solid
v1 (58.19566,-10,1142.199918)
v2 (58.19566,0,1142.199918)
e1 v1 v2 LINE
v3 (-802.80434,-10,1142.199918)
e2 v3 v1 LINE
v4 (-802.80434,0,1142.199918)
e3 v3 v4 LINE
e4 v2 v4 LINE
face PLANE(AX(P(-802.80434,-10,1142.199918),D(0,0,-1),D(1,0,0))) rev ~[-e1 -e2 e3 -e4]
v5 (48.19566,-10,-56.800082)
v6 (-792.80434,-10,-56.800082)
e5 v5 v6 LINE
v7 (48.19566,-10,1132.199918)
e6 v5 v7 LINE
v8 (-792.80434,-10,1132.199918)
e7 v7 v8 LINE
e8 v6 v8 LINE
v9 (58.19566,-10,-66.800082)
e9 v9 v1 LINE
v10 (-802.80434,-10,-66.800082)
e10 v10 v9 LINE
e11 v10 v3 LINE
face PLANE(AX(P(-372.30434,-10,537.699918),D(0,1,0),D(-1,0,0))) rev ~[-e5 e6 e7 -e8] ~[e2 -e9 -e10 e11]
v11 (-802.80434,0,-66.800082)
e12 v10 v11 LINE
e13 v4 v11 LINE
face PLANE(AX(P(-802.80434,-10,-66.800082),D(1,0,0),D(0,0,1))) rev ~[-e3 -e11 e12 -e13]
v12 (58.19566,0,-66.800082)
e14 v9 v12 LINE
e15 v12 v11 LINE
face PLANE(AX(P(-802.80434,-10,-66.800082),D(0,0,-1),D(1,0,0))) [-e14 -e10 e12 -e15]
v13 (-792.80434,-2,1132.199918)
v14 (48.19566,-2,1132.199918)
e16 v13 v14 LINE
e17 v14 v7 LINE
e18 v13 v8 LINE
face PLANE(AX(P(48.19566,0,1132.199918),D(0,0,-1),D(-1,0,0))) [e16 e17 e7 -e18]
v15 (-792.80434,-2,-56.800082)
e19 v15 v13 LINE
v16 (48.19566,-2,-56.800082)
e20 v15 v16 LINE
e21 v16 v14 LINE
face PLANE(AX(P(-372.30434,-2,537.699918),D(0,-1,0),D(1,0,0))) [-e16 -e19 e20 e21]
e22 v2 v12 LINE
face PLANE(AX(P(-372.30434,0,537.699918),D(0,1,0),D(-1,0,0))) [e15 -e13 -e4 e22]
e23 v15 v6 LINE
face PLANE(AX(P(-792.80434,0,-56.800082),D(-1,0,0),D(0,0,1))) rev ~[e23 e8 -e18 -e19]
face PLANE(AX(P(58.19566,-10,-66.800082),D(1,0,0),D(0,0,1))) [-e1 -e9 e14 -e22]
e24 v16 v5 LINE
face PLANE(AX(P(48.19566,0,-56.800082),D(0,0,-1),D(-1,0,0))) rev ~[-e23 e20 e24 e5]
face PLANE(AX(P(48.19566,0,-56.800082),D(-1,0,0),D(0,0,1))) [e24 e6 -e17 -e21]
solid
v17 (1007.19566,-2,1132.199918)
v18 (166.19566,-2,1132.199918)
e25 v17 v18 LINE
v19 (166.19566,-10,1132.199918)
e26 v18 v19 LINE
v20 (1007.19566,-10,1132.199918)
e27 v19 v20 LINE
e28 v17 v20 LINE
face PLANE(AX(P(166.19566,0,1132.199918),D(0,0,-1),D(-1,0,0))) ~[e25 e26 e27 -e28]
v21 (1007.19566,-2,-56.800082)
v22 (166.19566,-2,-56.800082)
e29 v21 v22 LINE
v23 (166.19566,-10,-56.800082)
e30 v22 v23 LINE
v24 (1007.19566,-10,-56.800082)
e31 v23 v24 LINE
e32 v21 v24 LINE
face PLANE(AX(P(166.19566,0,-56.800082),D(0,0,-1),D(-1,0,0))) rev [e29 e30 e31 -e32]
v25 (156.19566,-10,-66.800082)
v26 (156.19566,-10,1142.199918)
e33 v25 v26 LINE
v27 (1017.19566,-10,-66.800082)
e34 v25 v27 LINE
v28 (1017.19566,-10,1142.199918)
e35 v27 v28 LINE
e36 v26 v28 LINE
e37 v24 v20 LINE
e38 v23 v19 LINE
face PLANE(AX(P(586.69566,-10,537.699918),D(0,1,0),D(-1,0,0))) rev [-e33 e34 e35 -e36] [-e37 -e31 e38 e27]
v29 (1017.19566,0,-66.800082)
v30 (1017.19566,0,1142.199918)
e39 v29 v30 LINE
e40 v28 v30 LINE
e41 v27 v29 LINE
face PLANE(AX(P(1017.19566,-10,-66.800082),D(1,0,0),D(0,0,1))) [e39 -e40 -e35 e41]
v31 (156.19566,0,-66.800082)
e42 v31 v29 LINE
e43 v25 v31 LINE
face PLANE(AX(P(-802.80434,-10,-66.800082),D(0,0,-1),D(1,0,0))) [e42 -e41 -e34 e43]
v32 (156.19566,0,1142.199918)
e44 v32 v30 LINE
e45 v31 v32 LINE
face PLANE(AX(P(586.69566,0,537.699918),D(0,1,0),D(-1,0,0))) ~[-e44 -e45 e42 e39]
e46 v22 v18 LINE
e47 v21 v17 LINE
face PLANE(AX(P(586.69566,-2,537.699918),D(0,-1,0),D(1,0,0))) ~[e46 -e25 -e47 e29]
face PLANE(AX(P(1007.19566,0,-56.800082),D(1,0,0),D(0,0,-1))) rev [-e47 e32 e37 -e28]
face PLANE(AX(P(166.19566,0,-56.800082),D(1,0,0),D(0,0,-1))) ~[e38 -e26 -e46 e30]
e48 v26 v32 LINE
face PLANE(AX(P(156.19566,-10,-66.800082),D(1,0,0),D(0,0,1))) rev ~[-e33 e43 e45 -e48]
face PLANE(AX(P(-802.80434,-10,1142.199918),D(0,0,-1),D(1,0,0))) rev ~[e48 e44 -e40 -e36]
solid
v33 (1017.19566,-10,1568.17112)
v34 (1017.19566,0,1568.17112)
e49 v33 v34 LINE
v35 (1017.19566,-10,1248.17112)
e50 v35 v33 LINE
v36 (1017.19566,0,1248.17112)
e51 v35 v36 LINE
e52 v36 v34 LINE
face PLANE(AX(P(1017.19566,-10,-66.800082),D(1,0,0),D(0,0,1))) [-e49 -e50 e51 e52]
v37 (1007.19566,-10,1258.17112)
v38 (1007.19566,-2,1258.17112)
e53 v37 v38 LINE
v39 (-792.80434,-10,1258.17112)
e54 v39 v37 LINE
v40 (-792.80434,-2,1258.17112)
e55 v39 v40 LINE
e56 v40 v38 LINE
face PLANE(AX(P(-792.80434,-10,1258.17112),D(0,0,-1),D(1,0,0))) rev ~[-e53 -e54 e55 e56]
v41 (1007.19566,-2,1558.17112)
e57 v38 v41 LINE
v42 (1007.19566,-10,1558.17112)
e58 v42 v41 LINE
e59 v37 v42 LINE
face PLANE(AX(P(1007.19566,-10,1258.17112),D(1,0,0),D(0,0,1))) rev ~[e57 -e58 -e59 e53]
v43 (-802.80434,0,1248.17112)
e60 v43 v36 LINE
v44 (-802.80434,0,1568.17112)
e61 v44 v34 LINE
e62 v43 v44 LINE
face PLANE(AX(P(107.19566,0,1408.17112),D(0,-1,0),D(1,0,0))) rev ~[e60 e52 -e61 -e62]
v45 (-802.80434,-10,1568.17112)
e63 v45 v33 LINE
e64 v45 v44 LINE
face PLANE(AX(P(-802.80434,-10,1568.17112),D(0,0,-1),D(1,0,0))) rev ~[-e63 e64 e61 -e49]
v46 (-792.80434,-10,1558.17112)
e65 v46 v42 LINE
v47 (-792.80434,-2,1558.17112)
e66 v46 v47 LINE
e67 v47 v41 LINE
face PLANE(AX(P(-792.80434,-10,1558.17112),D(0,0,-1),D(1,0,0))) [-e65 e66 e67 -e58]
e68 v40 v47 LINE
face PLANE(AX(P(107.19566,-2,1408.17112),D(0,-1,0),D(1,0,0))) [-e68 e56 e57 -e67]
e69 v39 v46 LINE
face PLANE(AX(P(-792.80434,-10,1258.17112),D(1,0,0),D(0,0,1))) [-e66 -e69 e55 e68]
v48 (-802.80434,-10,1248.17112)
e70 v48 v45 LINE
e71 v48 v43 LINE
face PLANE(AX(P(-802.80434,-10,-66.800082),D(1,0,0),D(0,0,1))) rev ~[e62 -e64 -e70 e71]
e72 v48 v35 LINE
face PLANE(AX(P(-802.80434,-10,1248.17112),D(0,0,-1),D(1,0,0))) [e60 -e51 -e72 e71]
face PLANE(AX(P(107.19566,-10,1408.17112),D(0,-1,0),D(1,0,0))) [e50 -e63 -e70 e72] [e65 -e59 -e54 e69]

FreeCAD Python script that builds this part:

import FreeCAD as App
import Part
import Sketcher
Q = App.Units.Quantity


def add_polygon(sketch, points):
    """Adds a closed chain of lines whose ends are joined by coincident constraints."""
    first, n = sketch.GeometryCount, len(points)
    for a, b in zip(points, points[1:] + points[:1]):
        sketch.addGeometry(Part.LineSegment(App.Vector(*a, 0), App.Vector(*b, 0)), False)
    for i in range(n):
        sketch.addConstraint(Sketcher.Constraint("Coincident", first + i, 2, first + (i + 1) % n, 1))

doc = App.newDocument("Part")
body = doc.addObject("PartDesign::Body", "Body")

# Sketch on XZ plane
sketch1 = doc.addObject("Sketcher::SketchObject", "Sketch")
body.addObject(sketch1)
sketch1.AttachmentSupport = (doc.XZ_Plane, [""])
sketch1.MapMode = "FlatFace"
add_polygon(sketch1, [(-793, 1132), (-793, -57), (48, -57), (48, 1132)])  # lines 0-3
sketch1.addConstraint(Sketcher.Constraint("Vertical", 0))
sketch1.addConstraint(Sketcher.Constraint("Horizontal", 1))
sketch1.addConstraint(Sketcher.Constraint("Vertical", 2))
sketch1.addConstraint(Sketcher.Constraint("Horizontal", 3))
sketch1.addConstraint(Sketcher.Constraint("DistanceX", 1, 1, 1, 2, Q("841 mm")))
sketch1.addConstraint(Sketcher.Constraint("DistanceY", 0, 2, 0, 1, Q("1189 mm")))
sketch1.addConstraint(Sketcher.Constraint("DistanceX", 0, 2, -1, 1, Q("792.80434 mm")))
sketch1.addConstraint(Sketcher.Constraint("DistanceY", -1, 1, 2, 2, Q("1132.199918 mm")))
pad1 = doc.addObject("PartDesign::Pad", "Pad")
body.addObject(pad1)
pad1.Profile = sketch1
pad1.Length = 2

# Sketch on XZ plane
sketch2 = doc.addObject("Sketcher::SketchObject", "Sketch001")
body.addObject(sketch2)
sketch2.AttachmentSupport = (doc.XZ_Plane, [""])
sketch2.MapMode = "FlatFace"
add_polygon(sketch2, [(88, 1172), (88, -97), (-833, -97), (-833, 1172)])  # lines 0-3
add_polygon(sketch2, [(-793, -57), (48, -57), (48, 1132), (-793, 1132)])  # lines 4-7
sketch2.addConstraint(Sketcher.Constraint("Vertical", 0))
sketch2.addConstraint(Sketcher.Constraint("Horizontal", 1))
sketch2.addConstraint(Sketcher.Constraint("Vertical", 2))
sketch2.addConstraint(Sketcher.Constraint("Horizontal", 3))
sketch2.addConstraint(Sketcher.Constraint("Horizontal", 4))
sketch2.addConstraint(Sketcher.Constraint("Vertical", 5))
sketch2.addConstraint(Sketcher.Constraint("Horizontal", 6))
sketch2.addConstraint(Sketcher.Constraint("Vertical", 7))
sketch2.addConstraint(Sketcher.Constraint("DistanceX", 1, 2, 1, 1, Q("921 mm")))
sketch2.addConstraint(Sketcher.Constraint("DistanceX", 4, 1, 4, 2, Q("841 mm")))
sketch2.addConstraint(Sketcher.Constraint("DistanceY", 0, 2, 0, 1, Q("1269 mm")))
sketch2.addConstraint(Sketcher.Constraint("DistanceY", 5, 1, 5, 2, Q("1189 mm")))
sketch2.addConstraint(Sketcher.Constraint("DistanceX", 4, 2, 0, 2, Q("40 mm")))
sketch2.addConstraint(Sketcher.Constraint("DistanceY", 0, 2, 4, 2, Q("40 mm")))
sketch2.addConstraint(Sketcher.Constraint("DistanceX", -1, 1, 0, 2, Q("88.19566 mm")))
sketch2.addConstraint(Sketcher.Constraint("DistanceY", -1, 1, 2, 2, Q("1172.199918 mm")))
pad2 = doc.addObject("PartDesign::Pad", "Pad001")
body.addObject(pad2)
pad2.Profile = sketch2
pad2.Length = 10
body2 = doc.addObject("PartDesign::Body", "Body001")
doc.recompute()

mirroring = doc.addObject("Part::Mirroring", "Mirroring")
mirroring.Source = body
mirroring.Base = App.Vector(107.19566, -6, 537.699918)
mirroring.Normal = App.Vector(1, 0, 0)
body2.BaseFeature = mirroring
doc.recompute()
body3 = doc.addObject("PartDesign::Body", "Body002")

# Sketch on XZ plane
sketch3 = doc.addObject("Sketcher::SketchObject", "Sketch002")
body3.addObject(sketch3)
sketch3.AttachmentSupport = (doc.getObject("XZ_Plane002"), [""])
sketch3.MapMode = "FlatFace"
sketch3.AttachmentOffset = App.Placement(App.Vector(0, 0, 10), App.Rotation())
add_polygon(sketch3, [(-833, 1598), (-833, 1218), (1047, 1218), (1047, 1598)])  # lines 0-3
add_polygon(sketch3, [(1007, 1258), (-793, 1258), (-793, 1558), (1007, 1558)])  # lines 4-7
sketch3.addConstraint(Sketcher.Constraint("Vertical", 0))
sketch3.addConstraint(Sketcher.Constraint("Horizontal", 1))
sketch3.addConstraint(Sketcher.Constraint("Vertical", 2))
sketch3.addConstraint(Sketcher.Constraint("Horizontal", 3))
sketch3.addConstraint(Sketcher.Constraint("Horizontal", 4))
sketch3.addConstraint(Sketcher.Constraint("Vertical", 5))
sketch3.addConstraint(Sketcher.Constraint("Horizontal", 6))
sketch3.addConstraint(Sketcher.Constraint("Vertical", 7))
sketch3.addConstraint(Sketcher.Constraint("DistanceX", 1, 1, 1, 2, Q("1880 mm")))
sketch3.addConstraint(Sketcher.Constraint("DistanceX", 4, 2, 4, 1, Q("1800 mm")))
sketch3.addConstraint(Sketcher.Constraint("DistanceY", 0, 2, 0, 1, Q("380 mm")))
sketch3.addConstraint(Sketcher.Constraint("DistanceY", 5, 1, 5, 2, Q("300 mm")))
sketch3.addConstraint(Sketcher.Constraint("DistanceX", 0, 2, 4, 2, Q("40 mm")))
sketch3.addConstraint(Sketcher.Constraint("DistanceY", 0, 2, 4, 2, Q("40 mm")))
sketch3.addConstraint(Sketcher.Constraint("DistanceX", 0, 2, -1, 1, Q("832.80434 mm")))
sketch3.addConstraint(Sketcher.Constraint("DistanceY", -1, 1, 0, 2, Q("1218.17112 mm")))
pad3 = doc.addObject("PartDesign::Pad", "Pad002")
body3.addObject(pad3)
pad3.Profile = sketch3
pad3.Length = 10
pad3.Reversed = True

# Sketch on XZ plane
sketch4 = doc.addObject("Sketcher::SketchObject", "Sketch003")
body3.addObject(sketch4)
sketch4.AttachmentSupport = (doc.getObject("XZ_Plane002"), [""])
sketch4.MapMode = "FlatFace"
sketch4.AttachmentOffset = App.Placement(App.Vector(0, 0, 2), App.Rotation())
add_polygon(sketch4, [(-793, 1558), (-793, 1258), (1007, 1258), (1007, 1558)])  # lines 0-3
sketch4.addConstraint(Sketcher.Constraint("Vertical", 0))
sketch4.addConstraint(Sketcher.Constraint("Horizontal", 1))
sketch4.addConstraint(Sketcher.Constraint("Vertical", 2))
sketch4.addConstraint(Sketcher.Constraint("Horizontal", 3))
sketch4.addConstraint(Sketcher.Constraint("DistanceX", 1, 1, 1, 2, Q("1800 mm")))
sketch4.addConstraint(Sketcher.Constraint("DistanceY", 0, 2, 0, 1, Q("300 mm")))
sketch4.addConstraint(Sketcher.Constraint("DistanceX", 0, 2, -1, 1, Q("792.80434 mm")))
sketch4.addConstraint(Sketcher.Constraint("DistanceY", -1, 1, 0, 2, Q("1258.17112 mm")))
pad4 = doc.addObject("PartDesign::Pad", "Pad003")
body3.addObject(pad4)
pad4.Profile = sketch4
pad4.Length = 2
pad4.Reversed = True
body4 = doc.addObject("PartDesign::Body", "Body003")

# Sketch on XZ plane
sketch5 = doc.addObject("Sketcher::SketchObject", "Sketch004")
body4.addObject(sketch5)
sketch5.AttachmentSupport = (doc.getObject("XZ_Plane003"), [""])
sketch5.MapMode = "FlatFace"
sketch5.AttachmentOffset = App.Placement(App.Vector(0, 0, 10), App.Rotation())
add_polygon(sketch5, [(-833, 1598), (-833, -126), (1076, -126), (1076, 1598)])  # lines 0-3
add_polygon(sketch5, [(1017, -67), (-803, -67), (-803, 1568), (1017, 1568)])  # lines 4-7
sketch5.addConstraint(Sketcher.Constraint("Vertical", 0))
sketch5.addConstraint(Sketcher.Constraint("Horizontal", 1))
sketch5.addConstraint(Sketcher.Constraint("Vertical", 2))
sketch5.addConstraint(Sketcher.Constraint("Horizontal", 3))
sketch5.addConstraint(Sketcher.Constraint("Horizontal", 4))
sketch5.addConstraint(Sketcher.Constraint("Vertical", 5))
sketch5.addConstraint(Sketcher.Constraint("Horizontal", 6))
sketch5.addConstraint(Sketcher.Constraint("Vertical", 7))
sketch5.addConstraint(Sketcher.Constraint("DistanceX", 4, 2, 4, 1, Q("1820 mm")))
sketch5.addConstraint(Sketcher.Constraint("DistanceX", 0, 2, 4, 2, Q("29.999999 mm")))
sketch5.addConstraint(Sketcher.Constraint("DistanceY", 5, 2, 3, 2, Q("30 mm")))
sketch5.addConstraint(Sketcher.Constraint("DistanceY", 5, 1, 5, 2, Q("1634.971202 mm")))
sketch5.addConstraint(Sketcher.Constraint("DistanceY", 0, 2, 0, 1, Q("1724.52875 mm")))
sketch5.addConstraint(Sketcher.Constraint("DistanceX", 1, 1, 1, 2, Q("1908.451933 mm")))
sketch5.addConstraint(Sketcher.Constraint("DistanceX", 0, 2, -1, 1, Q("832.804339 mm")))
sketch5.addConstraint(Sketcher.Constraint("DistanceY", 0, 2, -1, 1, Q("126.35763 mm")))
pad5 = doc.addObject("PartDesign::Pad", "Pad004")
body4.addObject(pad5)
pad5.Profile = sketch5
pad5.Length = 25
pad5.Reversed = True
doc.recompute()

body5 = doc.addObject("PartDesign::Body", "Body004")
body5.BaseFeature = body4
boolean = doc.addObject("PartDesign::Boolean", "Boolean")
body.addObject(boolean)
boolean.Type = "Cut"
boolean.addObjects([body5])
doc.recompute()

body6 = doc.addObject("PartDesign::Body", "Body005")
body6.BaseFeature = body4
boolean2 = doc.addObject("PartDesign::Boolean", "Boolean001")
body2.addObject(boolean2)
boolean2.Type = "Cut"
boolean2.addObjects([body6])
doc.recompute()

boolean3 = doc.addObject("PartDesign::Boolean", "Boolean002")
body3.addObject(boolean3)
boolean3.Type = "Cut"
boolean3.addObjects([body4])
body7 = doc.addObject("PartDesign::Body", "Body006")

# Sketch on XZ plane
sketch6 = doc.addObject("Sketcher::SketchObject", "Sketch005")
body7.addObject(sketch6)
sketch6.AttachmentSupport = (doc.getObject("XZ_Plane006"), [""])
sketch6.MapMode = "FlatFace"
sketch6.AttachmentOffset = App.Placement(App.Vector(0, 0, 10), App.Rotation())
add_polygon(sketch6, [(-803, 1248), (-803, 1142), (1017, 1142), (1017, 1248)])  # lines 0-3
sketch6.addConstraint(Sketcher.Constraint("Vertical", 0))
sketch6.addConstraint(Sketcher.Constraint("Horizontal", 1))
sketch6.addConstraint(Sketcher.Constraint("Vertical", 2))
sketch6.addConstraint(Sketcher.Constraint("Horizontal", 3))
sketch6.addConstraint(Sketcher.Constraint("DistanceX", 1, 1, 1, 2, Q("1820 mm")))
sketch6.addConstraint(Sketcher.Constraint("DistanceY", 0, 2, 0, 1, Q("105.971202 mm")))
sketch6.addConstraint(Sketcher.Constraint("DistanceX", 0, 2, -1, 1, Q("802.80434 mm")))
sketch6.addConstraint(Sketcher.Constraint("DistanceY", -1, 1, 0, 2, Q("1142.199918 mm")))
pad6 = doc.addObject("PartDesign::Pad", "Pad005")
body7.addObject(pad6)
pad6.Profile = sketch6
pad6.Length = 25
pad6.Reversed = True
doc.recompute()

body8 = doc.addObject("PartDesign::Body", "Body007")
body8.BaseFeature = body7
boolean4 = doc.addObject("PartDesign::Boolean", "Boolean003")
body.addObject(boolean4)
boolean4.Type = "Cut"
boolean4.addObjects([body8])
doc.recompute()

body9 = doc.addObject("PartDesign::Body", "Body008")
body9.BaseFeature = body7
boolean5 = doc.addObject("PartDesign::Boolean", "Boolean004")
body2.addObject(boolean5)
boolean5.Type = "Cut"
boolean5.addObjects([body9])
doc.recompute()

boolean6 = doc.addObject("PartDesign::Boolean", "Boolean005")
body3.addObject(boolean6)
boolean6.Type = "Cut"
boolean6.addObjects([body7])
body10 = doc.addObject("PartDesign::Body", "Body009")

# Sketch on XZ plane
sketch7 = doc.addObject("Sketcher::SketchObject", "Sketch006")
body10.addObject(sketch7)
sketch7.AttachmentSupport = (doc.getObject("XZ_Plane009"), [""])
sketch7.MapMode = "FlatFace"
sketch7.AttachmentOffset = App.Placement(App.Vector(0, 0, 10), App.Rotation())
add_polygon(sketch7, [(58, 1142), (58, -67), (156, -67), (156, 1142)])  # lines 0-3
sketch7.addConstraint(Sketcher.Constraint("Vertical", 0))
sketch7.addConstraint(Sketcher.Constraint("Horizontal", 1))
sketch7.addConstraint(Sketcher.Constraint("Vertical", 2))
sketch7.addConstraint(Sketcher.Constraint("Horizontal", 3))
sketch7.addConstraint(Sketcher.Constraint("DistanceX", 1, 1, 1, 2, Q("98 mm")))
sketch7.addConstraint(Sketcher.Constraint("DistanceY", 0, 2, 0, 1, Q("1209 mm")))
sketch7.addConstraint(Sketcher.Constraint("DistanceX", -1, 1, 0, 2, Q("58.19566 mm")))
sketch7.addConstraint(Sketcher.Constraint("DistanceY", -1, 1, 2, 2, Q("1142.199918 mm")))
pad7 = doc.addObject("PartDesign::Pad", "Pad006")
body10.addObject(pad7)
pad7.Profile = sketch7
pad7.Length = 25
pad7.Reversed = True
doc.recompute()

body11 = doc.addObject("PartDesign::Body", "Body010")
body11.BaseFeature = body10
boolean7 = doc.addObject("PartDesign::Boolean", "Boolean006")
body.addObject(boolean7)
boolean7.Type = "Cut"
boolean7.addObjects([body11])
doc.recompute()

boolean8 = doc.addObject("PartDesign::Boolean", "Boolean007")
body2.addObject(boolean8)
boolean8.Type = "Cut"
boolean8.addObjects([body10])
mirroring.Visibility = False

doc.recompute()
